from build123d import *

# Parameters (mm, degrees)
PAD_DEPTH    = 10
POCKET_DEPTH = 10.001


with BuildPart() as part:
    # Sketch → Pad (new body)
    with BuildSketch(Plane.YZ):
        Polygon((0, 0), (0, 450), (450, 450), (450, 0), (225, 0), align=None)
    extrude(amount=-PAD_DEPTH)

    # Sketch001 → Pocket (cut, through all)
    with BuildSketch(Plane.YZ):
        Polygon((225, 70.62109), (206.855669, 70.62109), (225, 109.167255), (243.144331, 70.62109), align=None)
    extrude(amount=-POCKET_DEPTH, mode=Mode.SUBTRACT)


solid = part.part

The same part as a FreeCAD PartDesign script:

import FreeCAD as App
import Part
import Sketcher

V = App.Vector
Q = App.Units.Quantity


def add_polygon(sketch, points):
    """Adds a closed chain of lines whose ends are joined by coincident constraints."""
    first, n = sketch.GeometryCount, len(points)
    for a, b in zip(points, points[1:] + points[:1]):
        sketch.addGeometry(Part.LineSegment(App.Vector(*a, 0), App.Vector(*b, 0)), False)
    for i in range(n):
        sketch.addConstraint(Sketcher.Constraint("Coincident", first + i, 2, first + (i + 1) % n, 1))

doc = App.newDocument("Part")
body = doc.addObject("PartDesign::Body", "Body")

# Sketch on YZ plane
sketch1 = body.newObject("Sketcher::SketchObject", "Sketch")
sketch1.AttachmentSupport = (doc.getObject("YZ_Plane"), [""])
sketch1.MapMode = "FlatFace"
add_polygon(sketch1, [(0, 450), (0, 0), (450, 0), (450, 450)])  # lines 0-3
sketch1.addConstraint(Sketcher.Constraint("Vertical", 0))
sketch1.addConstraint(Sketcher.Constraint("Horizontal", 1))
sketch1.addConstraint(Sketcher.Constraint("Vertical", 2))
sketch1.addConstraint(Sketcher.Constraint("Horizontal", 3))
sketch1.addConstraint(Sketcher.Constraint("Coincident", 0, 2, -1, 1))
sketch1.addConstraint(Sketcher.Constraint("Equal", 3, 0))
sketch1.addConstraint(Sketcher.Constraint("DistanceX", 1, 1, 1, 2, Q("450 mm")))
pad1 = body.newObject("PartDesign::Pad", "Pad")
pad1.Profile = sketch1
pad1.Length = 10
pad1.Reversed = True

# Sketch on YZ plane
sketch2 = body.newObject("Sketcher::SketchObject", "Sketch001")
sketch2.AttachmentSupport = (doc.getObject("YZ_Plane"), [""])
sketch2.MapMode = "FlatFace"
add_polygon(sketch2, [(207, 71), (243, 71), (225, 109)])  # lines 0-2
sketch2.addConstraint(Sketcher.Constraint("Horizontal", 0))
sketch2.addConstraint(Sketcher.Constraint("Equal", 1, 2))
sketch2.addConstraint(Sketcher.Constraint("DistanceX", -1, 1, 1, 2, Q("225 mm")))
sketch2.addConstraint(Sketcher.Constraint("DistanceX", 0, 1, 0, 2, Q("36.288662 mm")))
sketch2.addConstraint(Sketcher.Constraint("DistanceY", -1, 1, 0, 2, Q("70.62109 mm")))
sketch2.addConstraint(Sketcher.Constraint("Distance", 1, Q("42.603094 mm")))
pocket1 = body.newObject("PartDesign::Pocket", "Pocket")
pocket1.Profile = sketch2
pocket1.Type = "ThroughAll"

doc.recompute()
